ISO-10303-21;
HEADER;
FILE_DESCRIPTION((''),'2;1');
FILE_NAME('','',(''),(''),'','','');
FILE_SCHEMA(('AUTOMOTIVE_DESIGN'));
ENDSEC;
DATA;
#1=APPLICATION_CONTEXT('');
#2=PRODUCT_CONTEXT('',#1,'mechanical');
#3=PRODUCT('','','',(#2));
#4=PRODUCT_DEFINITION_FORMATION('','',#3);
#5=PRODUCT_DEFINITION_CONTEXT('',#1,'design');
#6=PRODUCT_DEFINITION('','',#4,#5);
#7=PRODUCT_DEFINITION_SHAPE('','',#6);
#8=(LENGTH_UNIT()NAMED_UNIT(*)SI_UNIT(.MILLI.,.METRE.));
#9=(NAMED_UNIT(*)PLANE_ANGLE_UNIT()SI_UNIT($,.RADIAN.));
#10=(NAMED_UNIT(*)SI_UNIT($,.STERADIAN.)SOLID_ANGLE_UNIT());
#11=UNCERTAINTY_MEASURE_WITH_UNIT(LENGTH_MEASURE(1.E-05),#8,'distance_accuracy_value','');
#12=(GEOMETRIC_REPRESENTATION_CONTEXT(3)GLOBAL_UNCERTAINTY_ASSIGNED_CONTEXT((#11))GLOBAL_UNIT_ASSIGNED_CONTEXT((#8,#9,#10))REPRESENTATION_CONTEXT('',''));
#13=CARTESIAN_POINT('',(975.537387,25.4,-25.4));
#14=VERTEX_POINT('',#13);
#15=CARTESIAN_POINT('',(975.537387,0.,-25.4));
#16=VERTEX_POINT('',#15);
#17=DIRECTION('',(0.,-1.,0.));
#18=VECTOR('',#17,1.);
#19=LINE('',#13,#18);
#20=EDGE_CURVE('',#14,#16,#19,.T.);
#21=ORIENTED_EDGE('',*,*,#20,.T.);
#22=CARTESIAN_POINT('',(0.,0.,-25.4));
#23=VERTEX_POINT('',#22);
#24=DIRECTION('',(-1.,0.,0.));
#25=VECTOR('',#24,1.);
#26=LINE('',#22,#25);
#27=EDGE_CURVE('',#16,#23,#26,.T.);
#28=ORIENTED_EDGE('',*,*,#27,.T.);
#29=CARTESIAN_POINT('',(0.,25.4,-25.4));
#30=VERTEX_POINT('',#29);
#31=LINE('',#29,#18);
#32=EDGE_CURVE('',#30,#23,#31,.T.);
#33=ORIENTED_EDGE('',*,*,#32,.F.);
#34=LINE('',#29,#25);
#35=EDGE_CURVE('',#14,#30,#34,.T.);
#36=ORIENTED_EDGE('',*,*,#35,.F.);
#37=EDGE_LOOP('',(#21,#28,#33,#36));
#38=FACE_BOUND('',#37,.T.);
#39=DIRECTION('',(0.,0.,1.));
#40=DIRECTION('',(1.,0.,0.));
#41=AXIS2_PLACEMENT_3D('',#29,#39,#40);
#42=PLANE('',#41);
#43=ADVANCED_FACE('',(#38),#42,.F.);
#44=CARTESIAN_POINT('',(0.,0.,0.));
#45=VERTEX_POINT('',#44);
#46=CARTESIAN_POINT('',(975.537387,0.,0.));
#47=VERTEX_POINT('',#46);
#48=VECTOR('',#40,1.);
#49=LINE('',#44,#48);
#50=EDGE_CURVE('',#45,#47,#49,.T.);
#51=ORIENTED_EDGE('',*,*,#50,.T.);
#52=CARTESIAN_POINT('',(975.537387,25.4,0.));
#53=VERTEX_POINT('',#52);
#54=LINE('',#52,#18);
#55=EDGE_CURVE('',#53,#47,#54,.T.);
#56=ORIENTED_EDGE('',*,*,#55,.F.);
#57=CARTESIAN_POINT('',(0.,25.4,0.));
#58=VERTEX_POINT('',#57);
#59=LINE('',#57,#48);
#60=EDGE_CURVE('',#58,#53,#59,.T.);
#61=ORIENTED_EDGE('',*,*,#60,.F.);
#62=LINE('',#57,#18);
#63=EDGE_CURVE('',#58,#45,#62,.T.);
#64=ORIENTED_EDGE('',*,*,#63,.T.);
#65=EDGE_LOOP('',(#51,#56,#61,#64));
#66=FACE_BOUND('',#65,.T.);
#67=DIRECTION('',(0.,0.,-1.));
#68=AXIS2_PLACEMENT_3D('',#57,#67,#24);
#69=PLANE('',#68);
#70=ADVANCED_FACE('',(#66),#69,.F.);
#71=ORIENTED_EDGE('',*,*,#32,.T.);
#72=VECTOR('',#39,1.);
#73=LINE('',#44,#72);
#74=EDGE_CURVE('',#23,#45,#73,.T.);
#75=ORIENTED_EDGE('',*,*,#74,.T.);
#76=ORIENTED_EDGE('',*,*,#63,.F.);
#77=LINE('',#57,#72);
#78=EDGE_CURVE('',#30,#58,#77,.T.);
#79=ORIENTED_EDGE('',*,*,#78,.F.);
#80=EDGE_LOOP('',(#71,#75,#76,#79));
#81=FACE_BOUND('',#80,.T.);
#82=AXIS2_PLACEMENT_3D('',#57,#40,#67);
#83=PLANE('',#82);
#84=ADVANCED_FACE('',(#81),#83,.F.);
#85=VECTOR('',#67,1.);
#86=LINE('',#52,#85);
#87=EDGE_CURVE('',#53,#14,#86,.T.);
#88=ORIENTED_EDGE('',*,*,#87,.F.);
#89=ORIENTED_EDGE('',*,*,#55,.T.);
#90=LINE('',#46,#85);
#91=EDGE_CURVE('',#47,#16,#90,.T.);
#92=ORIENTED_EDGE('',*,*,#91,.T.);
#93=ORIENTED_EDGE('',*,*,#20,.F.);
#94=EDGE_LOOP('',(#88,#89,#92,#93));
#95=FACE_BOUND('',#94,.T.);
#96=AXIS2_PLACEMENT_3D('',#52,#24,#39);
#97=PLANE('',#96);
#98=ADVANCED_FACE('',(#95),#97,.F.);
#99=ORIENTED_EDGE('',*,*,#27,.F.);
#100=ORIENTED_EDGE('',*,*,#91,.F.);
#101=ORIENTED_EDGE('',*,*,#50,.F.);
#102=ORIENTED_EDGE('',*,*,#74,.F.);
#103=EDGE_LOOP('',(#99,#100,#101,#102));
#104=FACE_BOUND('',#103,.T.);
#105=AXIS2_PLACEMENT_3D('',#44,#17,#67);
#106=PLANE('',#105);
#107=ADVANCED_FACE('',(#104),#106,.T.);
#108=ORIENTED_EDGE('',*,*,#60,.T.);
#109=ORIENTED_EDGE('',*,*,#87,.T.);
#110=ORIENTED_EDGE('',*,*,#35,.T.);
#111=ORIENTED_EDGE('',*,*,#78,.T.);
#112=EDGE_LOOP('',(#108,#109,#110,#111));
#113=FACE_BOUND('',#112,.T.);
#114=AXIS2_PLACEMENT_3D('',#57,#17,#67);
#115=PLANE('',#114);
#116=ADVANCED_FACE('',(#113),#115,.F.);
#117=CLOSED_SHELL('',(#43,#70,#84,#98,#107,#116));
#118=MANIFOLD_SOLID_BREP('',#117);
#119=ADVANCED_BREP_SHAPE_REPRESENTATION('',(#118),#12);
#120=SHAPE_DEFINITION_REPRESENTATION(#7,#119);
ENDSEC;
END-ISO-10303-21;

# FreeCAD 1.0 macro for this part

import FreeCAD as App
import Part
import Sketcher
from FreeCAD import Vector
Q = App.Units.Quantity


def add_polygon(sketch, points):
    """Adds a closed chain of lines whose ends are joined by coincident constraints."""
    first, n = sketch.GeometryCount, len(points)
    for a, b in zip(points, points[1:] + points[:1]):
        sketch.addGeometry(Part.LineSegment(App.Vector(*a, 0), App.Vector(*b, 0)), False)
    for i in range(n):
        sketch.addConstraint(Sketcher.Constraint("Coincident", first + i, 2, first + (i + 1) % n, 1))

doc = App.newDocument("Part")
body = doc.addObject("PartDesign::Body", "Body")

# Sketch on XZ plane
sketch1 = doc.addObject("Sketcher::SketchObject", "Sketch")
body.addObject(sketch1)
sketch1.AttachmentSupport = (doc.XZ_Plane, [""])
sketch1.MapMode = "FlatFace"
add_polygon(sketch1, [(0, -25), (0, 0), (976, 0), (976, -25)])  # lines 0-3
sketch1.addConstraint(Sketcher.Constraint("Vertical", 0))
sketch1.addConstraint(Sketcher.Constraint("Horizontal", 1))
sketch1.addConstraint(Sketcher.Constraint("Vertical", 2))
sketch1.addConstraint(Sketcher.Constraint("Horizontal", 3))
sketch1.addConstraint(Sketcher.Constraint("Coincident", 0, 2, -1, 1))
sketch1.addConstraint(Sketcher.Constraint("DistanceY", 0, 1, 0, 2, Q("1 in")))
sketch1.addConstraint(Sketcher.Constraint("DistanceX", 1, 1, 1, 2, Q("975.537387 mm")))
pad1 = doc.addObject("PartDesign::Pad", "Pad")
body.addObject(pad1)
pad1.Profile = sketch1
pad1.Length = Q("1 in")
pad1.Reversed = True

doc.recompute()
